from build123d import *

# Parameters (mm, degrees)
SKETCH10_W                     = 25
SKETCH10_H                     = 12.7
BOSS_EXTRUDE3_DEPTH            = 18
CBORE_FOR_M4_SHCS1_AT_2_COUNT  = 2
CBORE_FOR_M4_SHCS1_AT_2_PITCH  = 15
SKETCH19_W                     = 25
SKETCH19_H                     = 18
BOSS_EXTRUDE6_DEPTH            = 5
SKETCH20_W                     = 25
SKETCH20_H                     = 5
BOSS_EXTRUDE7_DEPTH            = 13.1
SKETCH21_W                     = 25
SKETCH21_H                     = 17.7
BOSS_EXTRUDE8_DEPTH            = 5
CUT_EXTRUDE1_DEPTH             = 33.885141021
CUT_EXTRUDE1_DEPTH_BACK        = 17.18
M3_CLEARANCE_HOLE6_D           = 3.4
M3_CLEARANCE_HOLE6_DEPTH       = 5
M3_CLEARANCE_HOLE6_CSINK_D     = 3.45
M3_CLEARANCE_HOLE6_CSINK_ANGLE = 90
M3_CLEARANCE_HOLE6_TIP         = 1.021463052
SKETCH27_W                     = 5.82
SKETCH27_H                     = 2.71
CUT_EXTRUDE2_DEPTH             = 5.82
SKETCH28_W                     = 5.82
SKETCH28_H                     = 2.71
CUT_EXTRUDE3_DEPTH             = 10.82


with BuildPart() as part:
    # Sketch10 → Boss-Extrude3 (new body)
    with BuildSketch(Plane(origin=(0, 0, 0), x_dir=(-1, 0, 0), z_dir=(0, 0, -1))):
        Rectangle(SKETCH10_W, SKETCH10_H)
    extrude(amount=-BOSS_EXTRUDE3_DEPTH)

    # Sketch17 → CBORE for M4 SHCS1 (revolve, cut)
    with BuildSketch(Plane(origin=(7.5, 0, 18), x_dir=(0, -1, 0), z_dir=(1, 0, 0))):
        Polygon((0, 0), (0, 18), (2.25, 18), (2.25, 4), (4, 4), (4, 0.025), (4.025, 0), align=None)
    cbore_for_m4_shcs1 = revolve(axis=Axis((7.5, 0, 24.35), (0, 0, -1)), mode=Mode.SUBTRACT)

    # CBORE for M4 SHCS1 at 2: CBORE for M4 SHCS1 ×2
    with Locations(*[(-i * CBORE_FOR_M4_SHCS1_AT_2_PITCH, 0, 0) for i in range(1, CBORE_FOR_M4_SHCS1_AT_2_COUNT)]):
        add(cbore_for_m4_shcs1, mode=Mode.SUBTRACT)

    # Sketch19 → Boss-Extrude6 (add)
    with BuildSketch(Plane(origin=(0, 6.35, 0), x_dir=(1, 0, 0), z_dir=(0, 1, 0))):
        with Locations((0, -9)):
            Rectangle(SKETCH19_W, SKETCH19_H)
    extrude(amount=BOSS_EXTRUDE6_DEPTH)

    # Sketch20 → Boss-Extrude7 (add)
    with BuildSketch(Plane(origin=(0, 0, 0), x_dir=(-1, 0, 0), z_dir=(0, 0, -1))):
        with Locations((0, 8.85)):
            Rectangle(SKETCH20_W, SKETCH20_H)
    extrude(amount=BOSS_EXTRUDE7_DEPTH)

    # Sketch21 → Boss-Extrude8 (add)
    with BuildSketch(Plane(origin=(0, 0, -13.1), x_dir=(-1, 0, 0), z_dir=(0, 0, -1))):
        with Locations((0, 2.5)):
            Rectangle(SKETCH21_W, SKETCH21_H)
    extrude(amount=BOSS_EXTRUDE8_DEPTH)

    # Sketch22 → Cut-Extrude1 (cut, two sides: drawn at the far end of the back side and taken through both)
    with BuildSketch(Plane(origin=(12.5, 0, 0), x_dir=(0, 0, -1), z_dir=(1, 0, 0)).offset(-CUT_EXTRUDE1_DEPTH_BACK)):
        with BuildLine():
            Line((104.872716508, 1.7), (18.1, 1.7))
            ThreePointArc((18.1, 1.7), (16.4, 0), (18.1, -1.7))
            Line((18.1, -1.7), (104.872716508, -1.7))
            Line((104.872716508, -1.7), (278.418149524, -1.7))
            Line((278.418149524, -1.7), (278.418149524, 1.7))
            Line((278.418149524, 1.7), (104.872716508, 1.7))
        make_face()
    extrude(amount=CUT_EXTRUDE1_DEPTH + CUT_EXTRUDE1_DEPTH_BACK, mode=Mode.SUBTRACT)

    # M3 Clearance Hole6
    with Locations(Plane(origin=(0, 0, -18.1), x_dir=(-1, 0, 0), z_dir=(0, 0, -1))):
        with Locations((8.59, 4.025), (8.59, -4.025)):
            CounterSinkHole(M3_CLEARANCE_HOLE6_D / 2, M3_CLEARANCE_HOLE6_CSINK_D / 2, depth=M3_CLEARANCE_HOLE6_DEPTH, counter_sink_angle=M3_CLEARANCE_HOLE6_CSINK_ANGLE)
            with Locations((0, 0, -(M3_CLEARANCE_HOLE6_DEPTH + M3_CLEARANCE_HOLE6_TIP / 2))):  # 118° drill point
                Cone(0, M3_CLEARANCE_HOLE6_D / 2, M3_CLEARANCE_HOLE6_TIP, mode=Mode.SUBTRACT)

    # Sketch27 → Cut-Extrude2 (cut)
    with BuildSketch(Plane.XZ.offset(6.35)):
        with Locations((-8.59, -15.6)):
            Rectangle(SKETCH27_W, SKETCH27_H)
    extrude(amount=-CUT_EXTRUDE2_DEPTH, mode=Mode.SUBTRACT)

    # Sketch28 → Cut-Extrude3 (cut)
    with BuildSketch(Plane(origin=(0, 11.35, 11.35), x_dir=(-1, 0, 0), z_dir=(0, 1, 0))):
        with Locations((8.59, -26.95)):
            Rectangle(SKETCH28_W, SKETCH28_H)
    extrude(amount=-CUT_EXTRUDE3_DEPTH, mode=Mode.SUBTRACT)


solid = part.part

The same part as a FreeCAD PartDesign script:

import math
import FreeCAD as App
import Part
import Sketcher
from FreeCAD import Vector
Q = App.Units.Quantity


def add_polygon(sketch, points):
    """Adds a closed chain of lines whose ends are joined by coincident constraints."""
    first, n = sketch.GeometryCount, len(points)
    for a, b in zip(points, points[1:] + points[:1]):
        sketch.addGeometry(Part.LineSegment(App.Vector(*a, 0), App.Vector(*b, 0)), False)
    for i in range(n):
        sketch.addConstraint(Sketcher.Constraint("Coincident", first + i, 2, first + (i + 1) % n, 1))

doc = App.newDocument("Part")
body = doc.addObject("PartDesign::Body", "Body")

# Sketch on XY plane
sketch1 = doc.addObject("Sketcher::SketchObject", "Sketch")
body.addObject(sketch1)
sketch1.AttachmentSupport = (doc.XY_Plane, [""])
sketch1.MapMode = "FlatFace"
add_polygon(sketch1, [(12, 6), (12, -6), (-12, -6), (-12, 6)])  # lines 0-3
sketch1.addConstraint([
    Sketcher.Constraint("Vertical", 0),
    Sketcher.Constraint("Horizontal", 1),
    Sketcher.Constraint("Vertical", 2),
    Sketcher.Constraint("Horizontal", 3),
    Sketcher.Constraint("Symmetric", 0, 2, 2, 2, -1, 1),
    Sketcher.Constraint("DistanceX", 1, 2, 1, 1, 25.0),
    Sketcher.Constraint("DistanceY", 0, 2, 0, 1, 12.7),
])
pad1 = doc.addObject("PartDesign::Pad", "Pad")
body.addObject(pad1)
pad1.Profile = sketch1
pad1.Length = 18

# Sketch on YZ plane
sketch2 = doc.addObject("Sketcher::SketchObject", "Sketch001")
body.addObject(sketch2)
sketch2.AttachmentSupport = (doc.YZ_Plane, [""])
sketch2.MapMode = "FlatFace"
sketch2.AttachmentOffset = App.Placement(Vector(0, 0, 7.5), App.Rotation())
add_polygon(sketch2, [(0, 0), (0, 18), (-4.025, 18), (-4, 17.975), (-4, 14), (-2.25, 14), (-2.25, 0)])  # lines 0-6
sketch2.addConstraint([
    Sketcher.Constraint("Vertical", 0),
    Sketcher.Constraint("Horizontal", 1),
    Sketcher.Constraint("Vertical", 3),
    Sketcher.Constraint("Horizontal", 4),
    Sketcher.Constraint("Vertical", 5),
    Sketcher.Constraint("Horizontal", 6),
    Sketcher.Constraint("Coincident", 6, 2, -1, 1),
    Sketcher.Constraint("DistanceY", 0, 1, 0, 2, 18.0),
    Sketcher.Constraint("DistanceY", 5, 2, 5, 1, 14.0),
    Sketcher.Constraint("Angle", 2, Q("-45 deg")),
    Sketcher.Constraint("DistanceX", 2, 2, -1, 1, 4.0),
    Sketcher.Constraint("DistanceX", 4, 1, 4, 2, 1.75),
    Sketcher.Constraint("DistanceX", 1, 2, 1, 1, 4.025),
])
groove = doc.addObject("PartDesign::Groove", "Groove")
body.addObject(groove)
groove.Profile = sketch2
groove.ReferenceAxis = (sketch2, ["V_Axis"])
groove.Angle = 360
doc.recompute()

linearpattern = doc.addObject("PartDesign::LinearPattern", "LinearPattern")
body.addObject(linearpattern)
linearpattern.Originals = [groove]
linearpattern.Direction = (doc.X_Axis, [""])
linearpattern.Mode = "offset"
linearpattern.Offset = 15
linearpattern.Occurrences = 2
linearpattern.Reversed = True
body.Tip = linearpattern

# Sketch on XZ plane
sketch3 = doc.addObject("Sketcher::SketchObject", "Sketch002")
body.addObject(sketch3)
sketch3.AttachmentSupport = (doc.XZ_Plane, [""])
sketch3.MapMode = "FlatFace"
sketch3.AttachmentOffset = App.Placement(Vector(0, 0, -6.35), App.Rotation())
add_polygon(sketch3, [(-12, 0), (-12, 18), (12, 18), (12, 0)])  # lines 0-3
sketch3.addConstraint([
    Sketcher.Constraint("Vertical", 0),
    Sketcher.Constraint("Horizontal", 1),
    Sketcher.Constraint("Vertical", 2),
    Sketcher.Constraint("Horizontal", 3),
    Sketcher.Constraint("Symmetric", 2, 2, 3, 2, -1, 1),
    Sketcher.Constraint("DistanceX", 1, 1, 1, 2, 25.0),
    Sketcher.Constraint("DistanceY", 0, 1, 0, 2, 18.0),
])
pad2 = doc.addObject("PartDesign::Pad", "Pad001")
body.addObject(pad2)
pad2.Profile = sketch3
pad2.Length = 5
pad2.Reversed = True

# Sketch on XY plane
sketch4 = doc.addObject("Sketcher::SketchObject", "Sketch003")
body.addObject(sketch4)
sketch4.AttachmentSupport = (doc.XY_Plane, [""])
sketch4.MapMode = "FlatFace"
add_polygon(sketch4, [(12, 11), (12, 6), (-12, 6), (-12, 11)])  # lines 0-3
sketch4.addConstraint([
    Sketcher.Constraint("Vertical", 0),
    Sketcher.Constraint("Horizontal", 1),
    Sketcher.Constraint("Vertical", 2),
    Sketcher.Constraint("Horizontal", 3),
    Sketcher.Constraint("DistanceX", 1, 2, 1, 1, 25.0),
    Sketcher.Constraint("DistanceY", 0, 2, 0, 1, 5.0),
    Sketcher.Constraint("DistanceX", -1, 1, 0, 2, 12.5),
    Sketcher.Constraint("DistanceY", -1, 1, 0, 2, 6.35),
])
pad3 = doc.addObject("PartDesign::Pad", "Pad002")
body.addObject(pad3)
pad3.Profile = sketch4
pad3.Length = 13.1
pad3.Reversed = True

# Sketch on XY plane
sketch5 = doc.addObject("Sketcher::SketchObject", "Sketch004")
body.addObject(sketch5)
sketch5.AttachmentSupport = (doc.XY_Plane, [""])
sketch5.MapMode = "FlatFace"
sketch5.AttachmentOffset = App.Placement(Vector(0, 0, -13.1), App.Rotation())
add_polygon(sketch5, [(12, 11), (12, -6), (-12, -6), (-12, 11)])  # lines 0-3
sketch5.addConstraint([
    Sketcher.Constraint("Vertical", 0),
    Sketcher.Constraint("Horizontal", 1),
    Sketcher.Constraint("Vertical", 2),
    Sketcher.Constraint("Horizontal", 3),
    Sketcher.Constraint("DistanceX", 1, 2, 1, 1, 25.0),
    Sketcher.Constraint("DistanceY", 0, 2, 0, 1, 17.7),
    Sketcher.Constraint("DistanceX", -1, 1, 0, 2, 12.5),
    Sketcher.Constraint("DistanceY", 0, 2, -1, 1, 6.35),
])
pad4 = doc.addObject("PartDesign::Pad", "Pad003")
body.addObject(pad4)
pad4.Profile = sketch5
pad4.Length = 5
pad4.Reversed = True

# Sketch on YZ plane
sketch6 = doc.addObject("Sketcher::SketchObject", "Sketch005")
body.addObject(sketch6)
sketch6.AttachmentSupport = (doc.YZ_Plane, [""])
sketch6.MapMode = "FlatFace"
sketch6.AttachmentOffset = App.Placement(Vector(0, 0, 12.5), App.Rotation())
sketch6.addGeometry([
    Part.ArcOfCircle(Part.Circle(Vector(0, -18.1, 0), Vector(0, 0, 1), 1.7), math.radians(0), math.radians(180)),
    Part.LineSegment(Vector(-1.7, -18.1, 0), Vector(-1.7, -278.4, 0)),
    Part.LineSegment(Vector(-1.7, -278.4, 0), Vector(1.7, -278.4, 0)),
    Part.LineSegment(Vector(1.7, -278.4, 0), Vector(1.7, -18.1, 0)),
], False)
sketch6.addConstraint([
    Sketcher.Constraint("Tangent", 0, 2, 1, 1),
    Sketcher.Constraint("Coincident", 1, 2, 2, 1),
    Sketcher.Constraint("Coincident", 2, 2, 3, 1),
    Sketcher.Constraint("Tangent", 3, 2, 0, 1),
    Sketcher.Constraint("Vertical", 1),
    Sketcher.Constraint("Horizontal", 2),
    Sketcher.Constraint("Vertical", 3),
    Sketcher.Constraint("PointOnObject", 0, 3, -2),
    Sketcher.Constraint("Radius", 0, 1.7),
    Sketcher.Constraint("DistanceY", 0, 3, -1, 1, 18.1),
    Sketcher.Constraint("DistanceY", 1, 2, 1, 1, 260.31815),
])
pocket1 = doc.addObject("PartDesign::Pocket", "Pocket")
body.addObject(pocket1)
pocket1.Profile = sketch6
pocket1.Type = "TwoLengths"
pocket1.Length = 33.885141
pocket1.Length2 = 17.18
pocket1.Reversed = True

# Sketch on XY plane
sketch7 = doc.addObject("Sketcher::SketchObject", "Sketch006")
body.addObject(sketch7)
sketch7.AttachmentSupport = (doc.XY_Plane, [""])
sketch7.MapMode = "FlatFace"
sketch7.AttachmentOffset = App.Placement(Vector(0, 0, -18.1), App.Rotation())
sketch7.addGeometry([
    Part.Circle(Vector(-8.6, 4, 0), Vector(0, 0, 1), 1.7),
    Part.Circle(Vector(-8.6, -4, 0), Vector(0, 0, 1), 1.7),
], False)
sketch7.addConstraint([
    Sketcher.Constraint("Equal", 0, 1),
    Sketcher.Constraint("Symmetric", 0, 3, 1, 3, -1),
    Sketcher.Constraint("Diameter", 0, 3.4),
    Sketcher.Constraint("DistanceX", 0, 3, -1, 1, 8.59),
    Sketcher.Constraint("DistanceY", 1, 3, 0, 3, 8.05),
])
doc.recompute()
hole = doc.addObject("PartDesign::Hole", "Hole")
body.addObject(hole)
hole.Profile = sketch7
hole.ThreadType = "None"
hole.Diameter = 3.4
hole.DepthType = "Dimension"
hole.Depth = 5
hole.DrillPoint = "Angled"
hole.DrillPointAngle = 118
hole.HoleCutType = "Countersink"
hole.HoleCutDiameter = 3.45
hole.HoleCutCountersinkAngle = 90
hole.Reversed = True

# Sketch on XZ plane
sketch8 = doc.addObject("Sketcher::SketchObject", "Sketch007")
body.addObject(sketch8)
sketch8.AttachmentSupport = (doc.XZ_Plane, [""])
sketch8.MapMode = "FlatFace"
sketch8.AttachmentOffset = App.Placement(Vector(0, 0, 6.35), App.Rotation())
add_polygon(sketch8, [(-11.5, -14.2), (-11.5, -17), (-5.7, -17), (-5.7, -14.2)])  # lines 0-3
sketch8.addConstraint([
    Sketcher.Constraint("Vertical", 0),
    Sketcher.Constraint("Horizontal", 1),
    Sketcher.Constraint("Vertical", 2),
    Sketcher.Constraint("Horizontal", 3),
    Sketcher.Constraint("DistanceX", 1, 1, 1, 2, 5.82),
    Sketcher.Constraint("DistanceY", 0, 2, 0, 1, 2.71),
    Sketcher.Constraint("DistanceX", 0, 2, -1, 1, 11.5),
    Sketcher.Constraint("DistanceY", 0, 2, -1, 1, 16.955),
])
pocket2 = doc.addObject("PartDesign::Pocket", "Pocket001")
body.addObject(pocket2)
pocket2.Profile = sketch8
pocket2.Length = 5.82

# Sketch on XZ plane
sketch9 = doc.addObject("Sketcher::SketchObject", "Sketch008")
body.addObject(sketch9)
sketch9.AttachmentSupport = (doc.XZ_Plane, [""])
sketch9.MapMode = "FlatFace"
sketch9.AttachmentOffset = App.Placement(Vector(0, 0, -11.35), App.Rotation())
add_polygon(sketch9, [(-5.7, -14.2), (-5.7, -17), (-11.5, -17), (-11.5, -14.2)])  # lines 0-3
sketch9.addConstraint([
    Sketcher.Constraint("Vertical", 0),
    Sketcher.Constraint("Horizontal", 1),
    Sketcher.Constraint("Vertical", 2),
    Sketcher.Constraint("Horizontal", 3),
    Sketcher.Constraint("DistanceX", 1, 2, 1, 1, 5.82),
    Sketcher.Constraint("DistanceY", 0, 2, 0, 1, 2.71),
    Sketcher.Constraint("DistanceX", 1, 2, -1, 1, 11.5),
    Sketcher.Constraint("DistanceY", 0, 2, -1, 1, 16.955),
])
pocket3 = doc.addObject("PartDesign::Pocket", "Pocket002")
body.addObject(pocket3)
pocket3.Profile = sketch9
pocket3.Length = 10.82
pocket3.Reversed = True

doc.recompute()
